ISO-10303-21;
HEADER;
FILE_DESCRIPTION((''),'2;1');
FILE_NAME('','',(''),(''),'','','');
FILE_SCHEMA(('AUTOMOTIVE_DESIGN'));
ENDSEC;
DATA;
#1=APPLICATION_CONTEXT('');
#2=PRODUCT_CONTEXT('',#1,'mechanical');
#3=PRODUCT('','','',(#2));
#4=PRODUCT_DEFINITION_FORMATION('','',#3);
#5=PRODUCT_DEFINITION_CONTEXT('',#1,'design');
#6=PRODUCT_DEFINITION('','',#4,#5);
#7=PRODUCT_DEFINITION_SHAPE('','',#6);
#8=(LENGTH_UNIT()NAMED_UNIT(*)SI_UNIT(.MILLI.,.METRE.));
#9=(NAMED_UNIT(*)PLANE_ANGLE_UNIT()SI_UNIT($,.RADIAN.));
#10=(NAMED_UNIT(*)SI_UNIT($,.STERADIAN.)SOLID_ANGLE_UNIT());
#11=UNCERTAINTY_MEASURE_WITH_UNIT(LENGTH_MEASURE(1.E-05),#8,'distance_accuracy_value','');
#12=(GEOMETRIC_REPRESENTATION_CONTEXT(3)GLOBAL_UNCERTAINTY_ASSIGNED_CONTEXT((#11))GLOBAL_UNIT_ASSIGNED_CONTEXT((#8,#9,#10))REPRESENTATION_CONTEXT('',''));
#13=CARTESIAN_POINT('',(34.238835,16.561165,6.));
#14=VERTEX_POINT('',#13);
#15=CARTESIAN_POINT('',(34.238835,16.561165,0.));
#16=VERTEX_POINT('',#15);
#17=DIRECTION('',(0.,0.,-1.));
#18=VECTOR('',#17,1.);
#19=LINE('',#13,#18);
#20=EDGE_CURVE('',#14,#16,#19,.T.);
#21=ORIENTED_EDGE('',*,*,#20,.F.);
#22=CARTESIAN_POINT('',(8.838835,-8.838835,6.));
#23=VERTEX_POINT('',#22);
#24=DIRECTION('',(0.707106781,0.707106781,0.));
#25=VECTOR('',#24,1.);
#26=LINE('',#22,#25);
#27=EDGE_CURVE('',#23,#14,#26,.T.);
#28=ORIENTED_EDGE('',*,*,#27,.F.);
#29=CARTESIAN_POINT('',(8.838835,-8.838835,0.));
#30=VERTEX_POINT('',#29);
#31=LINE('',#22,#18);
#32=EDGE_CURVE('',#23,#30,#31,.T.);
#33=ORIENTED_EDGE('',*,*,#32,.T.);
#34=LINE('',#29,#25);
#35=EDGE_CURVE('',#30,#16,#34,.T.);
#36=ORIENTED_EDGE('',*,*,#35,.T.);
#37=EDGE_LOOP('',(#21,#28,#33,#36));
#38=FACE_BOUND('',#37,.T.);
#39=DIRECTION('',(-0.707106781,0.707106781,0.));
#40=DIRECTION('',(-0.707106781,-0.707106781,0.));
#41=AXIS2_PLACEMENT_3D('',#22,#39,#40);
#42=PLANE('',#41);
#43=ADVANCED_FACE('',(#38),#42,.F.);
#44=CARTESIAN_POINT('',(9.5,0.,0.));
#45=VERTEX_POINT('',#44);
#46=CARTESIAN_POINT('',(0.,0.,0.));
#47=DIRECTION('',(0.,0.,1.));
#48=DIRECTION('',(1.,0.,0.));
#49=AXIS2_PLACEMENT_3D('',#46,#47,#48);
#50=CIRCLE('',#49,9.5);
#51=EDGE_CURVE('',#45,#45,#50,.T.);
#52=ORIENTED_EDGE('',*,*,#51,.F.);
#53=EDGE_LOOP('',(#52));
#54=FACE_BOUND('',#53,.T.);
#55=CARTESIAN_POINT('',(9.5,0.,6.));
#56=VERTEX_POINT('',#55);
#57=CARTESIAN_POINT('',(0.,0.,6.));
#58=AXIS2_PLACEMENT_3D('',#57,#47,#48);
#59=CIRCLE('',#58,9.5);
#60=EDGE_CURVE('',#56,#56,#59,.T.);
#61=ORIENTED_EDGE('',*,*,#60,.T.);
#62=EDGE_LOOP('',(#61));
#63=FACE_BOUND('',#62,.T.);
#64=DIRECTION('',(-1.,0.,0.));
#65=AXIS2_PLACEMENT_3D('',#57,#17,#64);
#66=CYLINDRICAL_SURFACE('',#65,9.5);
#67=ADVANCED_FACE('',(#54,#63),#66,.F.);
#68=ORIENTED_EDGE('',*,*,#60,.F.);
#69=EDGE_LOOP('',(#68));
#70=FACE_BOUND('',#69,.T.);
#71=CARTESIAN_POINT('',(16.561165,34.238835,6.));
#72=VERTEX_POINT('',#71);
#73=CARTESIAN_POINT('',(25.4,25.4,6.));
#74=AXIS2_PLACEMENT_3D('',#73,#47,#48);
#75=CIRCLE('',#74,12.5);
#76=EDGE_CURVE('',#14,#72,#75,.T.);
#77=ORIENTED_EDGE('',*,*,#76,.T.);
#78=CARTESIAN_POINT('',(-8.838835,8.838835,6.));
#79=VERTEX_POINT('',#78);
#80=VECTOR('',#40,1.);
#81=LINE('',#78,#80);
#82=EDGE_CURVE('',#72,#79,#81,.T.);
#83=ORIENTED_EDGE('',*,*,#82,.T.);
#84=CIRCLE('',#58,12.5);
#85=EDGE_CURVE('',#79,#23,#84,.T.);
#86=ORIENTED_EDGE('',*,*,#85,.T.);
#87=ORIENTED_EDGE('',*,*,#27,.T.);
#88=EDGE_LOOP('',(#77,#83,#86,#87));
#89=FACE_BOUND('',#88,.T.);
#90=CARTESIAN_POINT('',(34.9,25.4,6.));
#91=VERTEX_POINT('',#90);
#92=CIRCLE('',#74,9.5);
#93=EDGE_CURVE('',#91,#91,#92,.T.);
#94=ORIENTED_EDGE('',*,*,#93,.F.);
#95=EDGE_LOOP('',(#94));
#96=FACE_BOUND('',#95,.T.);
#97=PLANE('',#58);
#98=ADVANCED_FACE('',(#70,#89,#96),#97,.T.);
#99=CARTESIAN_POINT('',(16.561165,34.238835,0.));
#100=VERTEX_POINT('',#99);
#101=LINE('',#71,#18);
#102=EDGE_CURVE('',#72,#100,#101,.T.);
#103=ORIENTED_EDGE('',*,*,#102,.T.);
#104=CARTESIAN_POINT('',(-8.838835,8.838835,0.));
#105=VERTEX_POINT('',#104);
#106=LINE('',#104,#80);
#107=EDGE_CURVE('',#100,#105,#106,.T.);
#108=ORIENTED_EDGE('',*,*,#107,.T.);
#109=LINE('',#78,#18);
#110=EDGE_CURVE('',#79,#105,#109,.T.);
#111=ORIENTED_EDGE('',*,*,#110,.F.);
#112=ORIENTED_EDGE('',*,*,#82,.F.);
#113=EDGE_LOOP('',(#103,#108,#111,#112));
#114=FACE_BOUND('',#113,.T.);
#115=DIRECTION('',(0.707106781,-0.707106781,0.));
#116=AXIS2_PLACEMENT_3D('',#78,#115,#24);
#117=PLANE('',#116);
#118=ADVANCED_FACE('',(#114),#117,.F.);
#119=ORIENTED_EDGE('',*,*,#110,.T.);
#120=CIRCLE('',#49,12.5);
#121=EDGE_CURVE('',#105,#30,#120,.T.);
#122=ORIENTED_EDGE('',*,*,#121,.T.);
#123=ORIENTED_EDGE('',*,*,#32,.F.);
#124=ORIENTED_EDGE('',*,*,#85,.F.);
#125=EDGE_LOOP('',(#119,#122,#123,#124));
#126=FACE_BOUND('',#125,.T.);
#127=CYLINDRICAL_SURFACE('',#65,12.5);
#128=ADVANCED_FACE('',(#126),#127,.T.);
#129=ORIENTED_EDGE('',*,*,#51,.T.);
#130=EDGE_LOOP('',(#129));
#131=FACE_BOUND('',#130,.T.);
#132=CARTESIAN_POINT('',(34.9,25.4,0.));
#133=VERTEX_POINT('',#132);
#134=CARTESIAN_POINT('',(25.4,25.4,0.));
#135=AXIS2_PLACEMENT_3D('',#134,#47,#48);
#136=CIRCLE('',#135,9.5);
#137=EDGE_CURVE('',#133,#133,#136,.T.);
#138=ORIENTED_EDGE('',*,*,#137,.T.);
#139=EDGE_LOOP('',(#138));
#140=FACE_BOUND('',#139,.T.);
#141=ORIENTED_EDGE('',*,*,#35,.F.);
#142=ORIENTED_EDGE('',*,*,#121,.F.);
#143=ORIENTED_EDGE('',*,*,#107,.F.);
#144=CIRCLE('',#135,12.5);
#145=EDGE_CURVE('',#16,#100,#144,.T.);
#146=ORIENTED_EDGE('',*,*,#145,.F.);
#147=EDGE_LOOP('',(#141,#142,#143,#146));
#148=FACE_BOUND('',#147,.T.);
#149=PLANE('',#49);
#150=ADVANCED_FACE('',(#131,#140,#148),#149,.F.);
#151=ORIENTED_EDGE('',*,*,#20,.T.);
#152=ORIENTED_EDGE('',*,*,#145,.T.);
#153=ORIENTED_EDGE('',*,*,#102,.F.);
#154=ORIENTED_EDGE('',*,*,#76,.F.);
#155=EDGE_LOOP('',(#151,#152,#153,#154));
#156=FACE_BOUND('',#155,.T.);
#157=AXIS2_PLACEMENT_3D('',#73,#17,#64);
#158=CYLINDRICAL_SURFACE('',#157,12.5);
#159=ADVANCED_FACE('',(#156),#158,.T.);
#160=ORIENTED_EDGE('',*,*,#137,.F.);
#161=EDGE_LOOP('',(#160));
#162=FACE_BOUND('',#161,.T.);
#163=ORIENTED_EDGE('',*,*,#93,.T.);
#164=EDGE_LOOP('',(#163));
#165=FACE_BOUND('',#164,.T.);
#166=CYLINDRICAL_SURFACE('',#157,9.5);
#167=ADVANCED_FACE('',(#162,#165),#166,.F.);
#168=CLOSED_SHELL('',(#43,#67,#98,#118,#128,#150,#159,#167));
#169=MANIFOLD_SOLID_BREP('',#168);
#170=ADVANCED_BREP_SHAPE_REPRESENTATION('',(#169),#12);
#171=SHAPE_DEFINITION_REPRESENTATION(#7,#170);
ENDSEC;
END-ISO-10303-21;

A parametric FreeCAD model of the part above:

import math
import FreeCAD as App
import Part
import Sketcher
Q = App.Units.Quantity

doc = App.newDocument("Part")
body = doc.addObject("PartDesign::Body", "Body")

# Sketch on XY plane
sketch1 = doc.addObject("Sketcher::SketchObject", "Sketch")
body.addObject(sketch1)
sketch1.AttachmentSupport = (doc.XY_Plane, [""])
sketch1.MapMode = "FlatFace"
sketch1.addGeometry(Part.LineSegment(App.Vector(17, 34, 0), App.Vector(-9, 9, 0)), False)
sketch1.addGeometry(Part.ArcOfCircle(Part.Circle(App.Vector(0, 0, 0), App.Vector(0, 0, 1), 12), math.radians(135), math.radians(315)), False)
sketch1.addGeometry(Part.LineSegment(App.Vector(9, -9, 0), App.Vector(34, 17, 0)), False)
sketch1.addGeometry(Part.ArcOfCircle(Part.Circle(App.Vector(25, 25, 0), App.Vector(0, 0, 1), 12), math.radians(-45), math.radians(135)), False)
sketch1.addGeometry(Part.Circle(App.Vector(0, 0, 0), App.Vector(0, 0, 1), 10), False)
sketch1.addGeometry(Part.Circle(App.Vector(25, 25, 0), App.Vector(0, 0, 1), 10), False)
sketch1.addConstraint(Sketcher.Constraint("Tangent", 0, 2, 1, 1))
sketch1.addConstraint(Sketcher.Constraint("Tangent", 1, 2, 2, 1))
sketch1.addConstraint(Sketcher.Constraint("Tangent", 2, 2, 3, 1))
sketch1.addConstraint(Sketcher.Constraint("Tangent", 3, 2, 0, 1))
sketch1.addConstraint(Sketcher.Constraint("Coincident", 1, 3, -1, 1))
sketch1.addConstraint(Sketcher.Constraint("Coincident", 4, 3, -1, 1))
sketch1.addConstraint(Sketcher.Constraint("Coincident", 5, 3, 3, 3))
sketch1.addConstraint(Sketcher.Constraint("Equal", 1, 3))
sketch1.addConstraint(Sketcher.Constraint("Equal", 4, 5))
sketch1.addConstraint(Sketcher.Constraint("Diameter", 4, 19.0))
sketch1.addConstraint(Sketcher.Constraint("Radius", 1, 12.5))
sketch1.addConstraint(Sketcher.Constraint("Angle", 0, Q("-135 deg")))
sketch1.addConstraint(Sketcher.Constraint("DistanceX", -1, 1, 3, 3, 25.4))
pad1 = doc.addObject("PartDesign::Pad", "Pad")
body.addObject(pad1)
pad1.Profile = sketch1
pad1.Length = 6

doc.recompute()
